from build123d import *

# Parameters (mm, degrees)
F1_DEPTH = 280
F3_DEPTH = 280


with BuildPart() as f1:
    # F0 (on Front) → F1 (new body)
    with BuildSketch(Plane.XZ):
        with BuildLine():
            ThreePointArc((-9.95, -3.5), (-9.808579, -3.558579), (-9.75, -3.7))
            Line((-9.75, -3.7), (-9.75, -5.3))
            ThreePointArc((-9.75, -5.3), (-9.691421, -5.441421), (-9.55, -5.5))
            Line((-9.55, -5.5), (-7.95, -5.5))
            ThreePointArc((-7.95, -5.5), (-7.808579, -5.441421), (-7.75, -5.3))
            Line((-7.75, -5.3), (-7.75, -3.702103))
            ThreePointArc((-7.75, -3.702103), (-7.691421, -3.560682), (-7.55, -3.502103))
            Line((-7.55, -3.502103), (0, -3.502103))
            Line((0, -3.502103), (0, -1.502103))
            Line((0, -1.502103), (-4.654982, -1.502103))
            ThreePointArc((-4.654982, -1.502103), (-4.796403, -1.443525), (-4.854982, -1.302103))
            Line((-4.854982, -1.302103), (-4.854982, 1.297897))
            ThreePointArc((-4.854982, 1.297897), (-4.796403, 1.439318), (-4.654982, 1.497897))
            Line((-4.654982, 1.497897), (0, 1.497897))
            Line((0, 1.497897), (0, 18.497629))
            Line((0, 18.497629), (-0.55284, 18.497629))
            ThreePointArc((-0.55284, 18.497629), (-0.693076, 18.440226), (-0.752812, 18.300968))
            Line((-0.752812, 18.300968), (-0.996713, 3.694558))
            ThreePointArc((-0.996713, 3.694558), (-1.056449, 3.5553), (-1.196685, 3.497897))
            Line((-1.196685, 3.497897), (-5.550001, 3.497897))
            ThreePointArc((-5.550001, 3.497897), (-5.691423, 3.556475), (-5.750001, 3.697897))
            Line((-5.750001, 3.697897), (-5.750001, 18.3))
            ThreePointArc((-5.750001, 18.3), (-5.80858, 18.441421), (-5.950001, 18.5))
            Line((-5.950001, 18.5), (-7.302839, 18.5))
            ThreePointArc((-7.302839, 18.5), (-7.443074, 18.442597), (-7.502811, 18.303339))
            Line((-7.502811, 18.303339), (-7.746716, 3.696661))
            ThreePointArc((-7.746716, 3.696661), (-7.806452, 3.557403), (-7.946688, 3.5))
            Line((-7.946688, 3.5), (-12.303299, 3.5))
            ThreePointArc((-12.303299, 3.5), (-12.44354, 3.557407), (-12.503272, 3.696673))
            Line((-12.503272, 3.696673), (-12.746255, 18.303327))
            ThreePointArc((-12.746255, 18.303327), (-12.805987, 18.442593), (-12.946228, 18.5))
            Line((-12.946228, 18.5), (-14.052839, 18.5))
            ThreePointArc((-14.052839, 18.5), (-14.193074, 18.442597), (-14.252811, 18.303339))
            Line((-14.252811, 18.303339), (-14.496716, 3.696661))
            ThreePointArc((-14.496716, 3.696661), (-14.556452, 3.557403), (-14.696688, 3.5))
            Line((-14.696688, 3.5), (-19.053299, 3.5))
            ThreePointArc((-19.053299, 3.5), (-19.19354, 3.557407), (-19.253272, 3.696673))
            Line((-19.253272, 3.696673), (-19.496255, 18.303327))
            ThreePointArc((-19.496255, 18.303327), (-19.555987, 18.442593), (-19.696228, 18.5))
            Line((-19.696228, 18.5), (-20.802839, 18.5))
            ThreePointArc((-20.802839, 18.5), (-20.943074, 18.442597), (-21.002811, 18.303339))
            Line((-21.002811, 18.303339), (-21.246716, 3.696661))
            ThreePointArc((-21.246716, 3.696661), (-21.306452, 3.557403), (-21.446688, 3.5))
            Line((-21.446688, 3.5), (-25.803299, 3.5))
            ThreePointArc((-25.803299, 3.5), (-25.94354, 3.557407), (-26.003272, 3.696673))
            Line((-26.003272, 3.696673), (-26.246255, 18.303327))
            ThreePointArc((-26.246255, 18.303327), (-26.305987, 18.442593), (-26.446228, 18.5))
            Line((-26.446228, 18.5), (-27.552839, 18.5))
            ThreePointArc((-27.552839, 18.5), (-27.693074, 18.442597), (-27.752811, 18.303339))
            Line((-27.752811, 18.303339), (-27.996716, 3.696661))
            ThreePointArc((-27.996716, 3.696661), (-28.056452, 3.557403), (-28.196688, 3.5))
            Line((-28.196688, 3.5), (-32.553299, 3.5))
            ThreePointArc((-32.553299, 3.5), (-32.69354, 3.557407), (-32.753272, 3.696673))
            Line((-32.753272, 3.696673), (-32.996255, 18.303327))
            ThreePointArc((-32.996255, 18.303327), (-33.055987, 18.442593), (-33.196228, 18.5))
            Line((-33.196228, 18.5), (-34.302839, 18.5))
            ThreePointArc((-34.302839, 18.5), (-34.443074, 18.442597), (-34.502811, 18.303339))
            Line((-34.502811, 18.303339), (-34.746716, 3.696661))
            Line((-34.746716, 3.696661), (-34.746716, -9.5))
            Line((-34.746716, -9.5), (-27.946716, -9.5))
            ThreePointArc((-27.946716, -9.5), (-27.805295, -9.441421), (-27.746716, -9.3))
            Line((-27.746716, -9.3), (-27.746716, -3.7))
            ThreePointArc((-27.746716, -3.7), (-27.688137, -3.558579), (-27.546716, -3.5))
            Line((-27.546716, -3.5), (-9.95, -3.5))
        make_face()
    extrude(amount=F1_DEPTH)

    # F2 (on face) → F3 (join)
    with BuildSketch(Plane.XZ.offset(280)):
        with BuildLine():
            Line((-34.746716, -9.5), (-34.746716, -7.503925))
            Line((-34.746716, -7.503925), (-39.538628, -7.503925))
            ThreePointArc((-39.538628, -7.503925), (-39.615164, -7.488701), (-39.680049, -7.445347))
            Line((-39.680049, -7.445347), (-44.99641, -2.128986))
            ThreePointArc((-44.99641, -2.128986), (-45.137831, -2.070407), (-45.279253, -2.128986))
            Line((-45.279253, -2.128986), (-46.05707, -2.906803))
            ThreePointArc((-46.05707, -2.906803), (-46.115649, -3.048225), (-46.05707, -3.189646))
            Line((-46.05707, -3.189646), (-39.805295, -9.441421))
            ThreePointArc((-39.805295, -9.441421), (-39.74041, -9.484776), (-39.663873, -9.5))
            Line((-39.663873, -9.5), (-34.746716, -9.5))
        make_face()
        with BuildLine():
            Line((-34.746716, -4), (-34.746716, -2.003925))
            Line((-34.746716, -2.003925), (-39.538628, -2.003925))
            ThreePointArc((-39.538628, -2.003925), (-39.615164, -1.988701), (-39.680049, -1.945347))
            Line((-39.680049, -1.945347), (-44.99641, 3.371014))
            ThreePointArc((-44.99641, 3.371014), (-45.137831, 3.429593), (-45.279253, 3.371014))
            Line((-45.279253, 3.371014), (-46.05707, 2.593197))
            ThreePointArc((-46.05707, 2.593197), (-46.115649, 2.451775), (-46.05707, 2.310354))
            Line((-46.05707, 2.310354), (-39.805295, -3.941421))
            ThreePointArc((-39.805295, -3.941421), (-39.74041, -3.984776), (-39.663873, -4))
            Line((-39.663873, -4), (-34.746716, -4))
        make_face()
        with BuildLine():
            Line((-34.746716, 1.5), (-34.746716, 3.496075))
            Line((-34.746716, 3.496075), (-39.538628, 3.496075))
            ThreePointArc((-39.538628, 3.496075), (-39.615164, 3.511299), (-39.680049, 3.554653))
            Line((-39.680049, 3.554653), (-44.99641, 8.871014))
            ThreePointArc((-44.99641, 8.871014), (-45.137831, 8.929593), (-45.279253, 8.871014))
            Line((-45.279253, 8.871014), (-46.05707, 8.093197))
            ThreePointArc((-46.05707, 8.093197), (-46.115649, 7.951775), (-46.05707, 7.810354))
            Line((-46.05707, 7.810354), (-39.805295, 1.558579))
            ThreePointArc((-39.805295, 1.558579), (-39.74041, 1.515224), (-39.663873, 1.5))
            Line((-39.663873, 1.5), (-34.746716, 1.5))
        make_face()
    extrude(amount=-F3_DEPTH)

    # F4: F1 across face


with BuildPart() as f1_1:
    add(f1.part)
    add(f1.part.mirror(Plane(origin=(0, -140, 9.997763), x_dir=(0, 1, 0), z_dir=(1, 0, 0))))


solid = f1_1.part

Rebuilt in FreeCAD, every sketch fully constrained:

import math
import FreeCAD as App
import Part
import Sketcher

V = App.Vector
Q = App.Units.Quantity

doc = App.newDocument("Part")
body = doc.addObject("PartDesign::Body", "Body")

sketch1 = body.newObject("Sketcher::SketchObject", "Sketch")
sketch1.AttachmentSupport = (doc.getObject("XZ_Plane"), [""])
sketch1.MapMode = "FlatFace"
sketch1.addGeometry([
    Part.ArcOfCircle(Part.Circle(V(-9.950001, -3.700001, 0), V(0, 0, 1), 0.200001), math.radians(0.000348), math.radians(89.999652)),
    Part.LineSegment(V(-9.75, -3.7, 0), V(-9.75, -5.3, 0)),
    Part.ArcOfCircle(Part.Circle(V(-9.549999, -5.299999, 0), V(0, 0, 1), 0.200001), math.radians(-179.999652), math.radians(-90.000348)),
    Part.LineSegment(V(-9.55, -5.5, 0), V(-7.95, -5.5, 0)),
    Part.ArcOfCircle(Part.Circle(V(-7.950001, -5.299999, 0), V(0, 0, 1), 0.200001), math.radians(-89.999652), math.radians(-0.000348)),
    Part.LineSegment(V(-7.75, -5.3, 0), V(-7.75, -3.702103, 0)),
    Part.ArcOfCircle(Part.Circle(V(-7.549999, -3.702104, 0), V(0, 0, 1), 0.200001), math.radians(90.000348), math.radians(179.999652)),
    Part.LineSegment(V(-7.55, -3.502103, 0), V(0, -3.502103, 0)),
    Part.LineSegment(V(0, -3.502103, 0), V(0, -1.502103, 0)),
    Part.LineSegment(V(0, -1.502103, 0), V(-4.654982, -1.502103, 0)),
    Part.ArcOfCircle(Part.Circle(V(-4.654982, -1.302103, 0), V(0, 0, 1), 0.2), math.radians(179.999859), math.radians(270.000141)),
    Part.LineSegment(V(-4.854982, -1.302103, 0), V(-4.854982, 1.297897, 0)),
    Part.ArcOfCircle(Part.Circle(V(-4.654981, 1.297896, 0), V(0, 0, 1), 0.200001), math.radians(90.000348), math.radians(179.999652)),
    Part.LineSegment(V(-4.654982, 1.497897, 0), V(0, 1.497897, 0)),
    Part.LineSegment(V(0, 1.497897, 0), V(0, 18.497629, 0)),
    Part.LineSegment(V(0, 18.497629, 0), V(-0.55284, 18.497629, 0)),
    Part.ArcOfCircle(Part.Circle(V(-0.55284, 18.297629, 0), V(0, 0, 1), 0.2), math.radians(89.999904), math.radians(179.043534)),
    Part.LineSegment(V(-0.752812, 18.300968, 0), V(-0.996713, 3.694558, 0)),
    Part.ArcOfCircle(Part.Circle(V(-1.196685, 3.697897, 0), V(0, 0, 1), 0.2), math.radians(-90.000096), math.radians(-0.956466)),
    Part.LineSegment(V(-1.196685, 3.497897, 0), V(-5.550001, 3.497897, 0)),
    Part.ArcOfCircle(Part.Circle(V(-5.550003, 3.697895, 0), V(0, 0, 1), 0.199998), math.radians(179.99937), math.radians(270.00063)),
    Part.LineSegment(V(-5.750001, 3.697897, 0), V(-5.750001, 18.3, 0)),
    Part.ArcOfCircle(Part.Circle(V(-5.950002, 18.299999, 0), V(0, 0, 1), 0.200001), math.radians(0.000348), math.radians(89.999652)),
    Part.LineSegment(V(-5.950001, 18.5, 0), V(-7.302839, 18.5, 0)),
    Part.ArcOfCircle(Part.Circle(V(-7.302838, 18.299999, 0), V(0, 0, 1), 0.200001), math.radians(90.000395), math.radians(179.043044)),
    Part.LineSegment(V(-7.502811, 18.303339, 0), V(-7.746716, 3.696661, 0)),
    Part.ArcOfCircle(Part.Circle(V(-7.946688, 3.7, 0), V(0, 0, 1), 0.2), math.radians(-90.000096), math.radians(-0.956466)),
    Part.LineSegment(V(-7.946688, 3.5, 0), V(-12.303299, 3.5, 0)),
    Part.ArcOfCircle(Part.Circle(V(-12.3033, 3.699999, 0), V(0, 0, 1), 0.199999), math.radians(-179.047038), math.radians(-89.99961)),
    Part.LineSegment(V(-12.503272, 3.696673, 0), V(-12.746255, 18.303327, 0)),
    Part.ArcOfCircle(Part.Circle(V(-12.946227, 18.300001, 0), V(0, 0, 1), 0.199999), math.radians(0.952962), math.radians(90.00039)),
    Part.LineSegment(V(-12.946228, 18.5, 0), V(-14.052839, 18.5, 0)),
    Part.ArcOfCircle(Part.Circle(V(-14.052838, 18.299999, 0), V(0, 0, 1), 0.200001), math.radians(90.000395), math.radians(179.043044)),
    Part.LineSegment(V(-14.252811, 18.303339, 0), V(-14.496716, 3.696661, 0)),
    Part.ArcOfCircle(Part.Circle(V(-14.696688, 3.7, 0), V(0, 0, 1), 0.2), math.radians(-90.000096), math.radians(-0.956466)),
    Part.LineSegment(V(-14.696688, 3.5, 0), V(-19.053299, 3.5, 0)),
    Part.ArcOfCircle(Part.Circle(V(-19.0533, 3.699999, 0), V(0, 0, 1), 0.199999), math.radians(-179.047038), math.radians(-89.99961)),
    Part.LineSegment(V(-19.253272, 3.696673, 0), V(-19.496255, 18.303327, 0)),
    Part.ArcOfCircle(Part.Circle(V(-19.696227, 18.300001, 0), V(0, 0, 1), 0.199999), math.radians(0.952962), math.radians(90.00039)),
    Part.LineSegment(V(-19.696228, 18.5, 0), V(-20.802839, 18.5, 0)),
    Part.ArcOfCircle(Part.Circle(V(-20.802838, 18.299999, 0), V(0, 0, 1), 0.200001), math.radians(90.000395), math.radians(179.043044)),
    Part.LineSegment(V(-21.002811, 18.303339, 0), V(-21.246716, 3.696661, 0)),
    Part.ArcOfCircle(Part.Circle(V(-21.446688, 3.7, 0), V(0, 0, 1), 0.2), math.radians(-90.000096), math.radians(-0.956466)),
    Part.LineSegment(V(-21.446688, 3.5, 0), V(-25.803299, 3.5, 0)),
    Part.ArcOfCircle(Part.Circle(V(-25.8033, 3.699999, 0), V(0, 0, 1), 0.199999), math.radians(-179.047038), math.radians(-89.99961)),
    Part.LineSegment(V(-26.003272, 3.696673, 0), V(-26.246255, 18.303327, 0)),
    Part.ArcOfCircle(Part.Circle(V(-26.446227, 18.300001, 0), V(0, 0, 1), 0.199999), math.radians(0.952962), math.radians(90.00039)),
    Part.LineSegment(V(-26.446228, 18.5, 0), V(-27.552839, 18.5, 0)),
    Part.ArcOfCircle(Part.Circle(V(-27.552838, 18.299999, 0), V(0, 0, 1), 0.200001), math.radians(90.000395), math.radians(179.043044)),
    Part.LineSegment(V(-27.752811, 18.303339, 0), V(-27.996716, 3.696661, 0)),
    Part.ArcOfCircle(Part.Circle(V(-28.196688, 3.7, 0), V(0, 0, 1), 0.2), math.radians(-90.000096), math.radians(-0.956466)),
    Part.LineSegment(V(-28.196688, 3.5, 0), V(-32.553299, 3.5, 0)),
    Part.ArcOfCircle(Part.Circle(V(-32.5533, 3.699999, 0), V(0, 0, 1), 0.199999), math.radians(-179.047038), math.radians(-89.99961)),
    Part.LineSegment(V(-32.753272, 3.696673, 0), V(-32.996255, 18.303327, 0)),
    Part.ArcOfCircle(Part.Circle(V(-33.196227, 18.300001, 0), V(0, 0, 1), 0.199999), math.radians(0.952962), math.radians(90.00039)),
    Part.LineSegment(V(-33.196228, 18.5, 0), V(-34.302839, 18.5, 0)),
    Part.ArcOfCircle(Part.Circle(V(-34.302838, 18.299999, 0), V(0, 0, 1), 0.200001), math.radians(90.000395), math.radians(179.043044)),
    Part.LineSegment(V(-34.502811, 18.303339, 0), V(-34.746716, 3.696661, 0)),
    Part.LineSegment(V(-34.746716, 3.696661, 0), V(-34.746716, -9.5, 0)),
    Part.LineSegment(V(-34.746716, -9.5, 0), V(-27.946716, -9.5, 0)),
    Part.ArcOfCircle(Part.Circle(V(-27.946717, -9.299999, 0), V(0, 0, 1), 0.200001), math.radians(-89.999652), math.radians(-0.000348)),
    Part.LineSegment(V(-27.746716, -9.3, 0), V(-27.746716, -3.7, 0)),
    Part.ArcOfCircle(Part.Circle(V(-27.546715, -3.700001, 0), V(0, 0, 1), 0.200001), math.radians(90.000348), math.radians(179.999652)),
    Part.LineSegment(V(-27.546716, -3.5, 0), V(-9.95, -3.5, 0)),
], False)
sketch1.addConstraint([
    Sketcher.Constraint("Coincident", 0, 1, 1, 1),
    Sketcher.Constraint("Coincident", 1, 2, 2, 1),
    Sketcher.Constraint("Coincident", 2, 2, 3, 1),
    Sketcher.Constraint("Coincident", 3, 2, 4, 1),
    Sketcher.Constraint("Coincident", 4, 2, 5, 1),
    Sketcher.Constraint("Coincident", 5, 2, 6, 2),
    Sketcher.Constraint("Coincident", 6, 1, 7, 1),
    Sketcher.Constraint("Coincident", 7, 2, 8, 1),
    Sketcher.Constraint("Coincident", 8, 2, 9, 1),
    Sketcher.Constraint("Coincident", 9, 2, 10, 2),
    Sketcher.Constraint("Coincident", 10, 1, 11, 1),
    Sketcher.Constraint("Coincident", 11, 2, 12, 2),
    Sketcher.Constraint("Coincident", 12, 1, 13, 1),
    Sketcher.Constraint("Coincident", 13, 2, 14, 1),
    Sketcher.Constraint("Coincident", 14, 2, 15, 1),
    Sketcher.Constraint("Coincident", 15, 2, 16, 1),
    Sketcher.Constraint("Coincident", 16, 2, 17, 1),
    Sketcher.Constraint("Coincident", 17, 2, 18, 2),
    Sketcher.Constraint("Coincident", 18, 1, 19, 1),
    Sketcher.Constraint("Coincident", 19, 2, 20, 2),
    Sketcher.Constraint("Coincident", 20, 1, 21, 1),
    Sketcher.Constraint("Coincident", 21, 2, 22, 1),
    Sketcher.Constraint("Coincident", 22, 2, 23, 1),
    Sketcher.Constraint("Coincident", 23, 2, 24, 1),
    Sketcher.Constraint("Coincident", 24, 2, 25, 1),
    Sketcher.Constraint("Coincident", 25, 2, 26, 2),
    Sketcher.Constraint("Coincident", 26, 1, 27, 1),
    Sketcher.Constraint("Coincident", 27, 2, 28, 2),
    Sketcher.Constraint("Coincident", 28, 1, 29, 1),
    Sketcher.Constraint("Coincident", 29, 2, 30, 1),
    Sketcher.Constraint("Coincident", 30, 2, 31, 1),
    Sketcher.Constraint("Coincident", 31, 2, 32, 1),
    Sketcher.Constraint("Coincident", 32, 2, 33, 1),
    Sketcher.Constraint("Coincident", 33, 2, 34, 2),
    Sketcher.Constraint("Coincident", 34, 1, 35, 1),
    Sketcher.Constraint("Coincident", 35, 2, 36, 2),
    Sketcher.Constraint("Coincident", 36, 1, 37, 1),
    Sketcher.Constraint("Coincident", 37, 2, 38, 1),
    Sketcher.Constraint("Coincident", 38, 2, 39, 1),
    Sketcher.Constraint("Coincident", 39, 2, 40, 1),
    Sketcher.Constraint("Coincident", 40, 2, 41, 1),
    Sketcher.Constraint("Coincident", 41, 2, 42, 2),
    Sketcher.Constraint("Coincident", 42, 1, 43, 1),
    Sketcher.Constraint("Coincident", 43, 2, 44, 2),
    Sketcher.Constraint("Coincident", 44, 1, 45, 1),
    Sketcher.Constraint("Coincident", 45, 2, 46, 1),
    Sketcher.Constraint("Coincident", 46, 2, 47, 1),
    Sketcher.Constraint("Coincident", 47, 2, 48, 1),
    Sketcher.Constraint("Coincident", 48, 2, 49, 1),
    Sketcher.Constraint("Coincident", 49, 2, 50, 2),
    Sketcher.Constraint("Coincident", 50, 1, 51, 1),
    Sketcher.Constraint("Coincident", 51, 2, 52, 2),
    Sketcher.Constraint("Coincident", 52, 1, 53, 1),
    Sketcher.Constraint("Coincident", 53, 2, 54, 1),
    Sketcher.Constraint("Coincident", 54, 2, 55, 1),
    Sketcher.Constraint("Coincident", 55, 2, 56, 1),
    Sketcher.Constraint("Coincident", 56, 2, 57, 1),
    Sketcher.Constraint("Coincident", 57, 2, 58, 1),
    Sketcher.Constraint("Coincident", 58, 2, 59, 1),
    Sketcher.Constraint("Coincident", 59, 2, 60, 1),
    Sketcher.Constraint("Coincident", 60, 2, 61, 1),
    Sketcher.Constraint("Coincident", 61, 2, 62, 2),
    Sketcher.Constraint("Coincident", 62, 1, 63, 1),
    Sketcher.Constraint("Coincident", 63, 2, 0, 2),
    Sketcher.Constraint("Vertical", 1),
    Sketcher.Constraint("Horizontal", 3),
    Sketcher.Constraint("Vertical", 5),
    Sketcher.Constraint("Horizontal", 7),
    Sketcher.Constraint("Vertical", 8),
    Sketcher.Constraint("Horizontal", 9),
    Sketcher.Constraint("Vertical", 11),
    Sketcher.Constraint("Horizontal", 13),
    Sketcher.Constraint("Vertical", 14),
    Sketcher.Constraint("Horizontal", 15),
    Sketcher.Constraint("Horizontal", 19),
    Sketcher.Constraint("Vertical", 21),
    Sketcher.Constraint("Horizontal", 23),
    Sketcher.Constraint("Horizontal", 27),
    Sketcher.Constraint("Horizontal", 31),
    Sketcher.Constraint("Horizontal", 35),
    Sketcher.Constraint("Horizontal", 39),
    Sketcher.Constraint("Horizontal", 43),
    Sketcher.Constraint("Horizontal", 47),
    Sketcher.Constraint("Horizontal", 51),
    Sketcher.Constraint("Horizontal", 55),
    Sketcher.Constraint("Vertical", 58),
    Sketcher.Constraint("Horizontal", 59),
    Sketcher.Constraint("Vertical", 61),
    Sketcher.Constraint("Horizontal", 63),
    Sketcher.Constraint("PointOnObject", 7, 2, -2),
    Sketcher.Constraint("PointOnObject", 13, 2, -2),
    Sketcher.Constraint("Radius", 0, 0.200001),
    Sketcher.Constraint("Radius", 2, 0.200001),
    Sketcher.Constraint("Radius", 4, 0.200001),
    Sketcher.Constraint("Radius", 6, 0.200001),
    Sketcher.Constraint("Radius", 10, 0.2),
    Sketcher.Constraint("Radius", 12, 0.200001),
    Sketcher.Constraint("Radius", 16, 0.2),
    Sketcher.Constraint("Radius", 18, 0.2),
    Sketcher.Constraint("Radius", 22, 0.200001),
    Sketcher.Constraint("Radius", 24, 0.200001),
    Sketcher.Constraint("Radius", 26, 0.2),
    Sketcher.Constraint("Radius", 28, 0.199999),
    Sketcher.Constraint("Radius", 30, 0.199999),
    Sketcher.Constraint("Radius", 32, 0.200001),
    Sketcher.Constraint("Radius", 34, 0.2),
    Sketcher.Constraint("Radius", 36, 0.199999),
    Sketcher.Constraint("Radius", 38, 0.199999),
    Sketcher.Constraint("Radius", 40, 0.200001),
    Sketcher.Constraint("Radius", 42, 0.2),
    Sketcher.Constraint("Radius", 44, 0.199999),
    Sketcher.Constraint("Radius", 46, 0.199999),
    Sketcher.Constraint("Radius", 48, 0.200001),
    Sketcher.Constraint("Radius", 50, 0.2),
    Sketcher.Constraint("Radius", 52, 0.199999),
    Sketcher.Constraint("Radius", 54, 0.199999),
    Sketcher.Constraint("Radius", 56, 0.200001),
    Sketcher.Constraint("Radius", 60, 0.200001),
    Sketcher.Constraint("Radius", 62, 0.200001),
    Sketcher.Constraint("DistanceY", 8, 1, 8, 2, 2.0),
    Sketcher.Constraint("DistanceX", 3, 1, 3, 2, 1.6),
    Sketcher.Constraint("DistanceX", 59, 1, 59, 2, 6.8),
    Sketcher.Constraint("DistanceY", 1, 2, 1, 1, 1.6),
    Sketcher.Constraint("DistanceY", 11, 1, 11, 2, 2.6),
    Sketcher.Constraint("DistanceY", 61, 1, 61, 2, 5.6),
    Sketcher.Constraint("DistanceX", 7, 1, 7, 2, 7.55),
    Sketcher.Constraint("DistanceY", 0, 3, -1, 1, 3.700001),
    Sketcher.Constraint("DistanceY", 2, 3, -1, 1, 5.299999),
    Sketcher.Constraint("DistanceY", -1, 1, 22, 3, 18.299999),
    Sketcher.Constraint("DistanceY", -1, 1, 26, 3, 3.7),
    Sketcher.Constraint("DistanceY", -1, 1, 30, 3, 18.300001),
    Sketcher.Constraint("DistanceY", -1, 1, 34, 3, 3.7),
    Sketcher.Constraint("DistanceY", -1, 1, 38, 3, 18.300001),
    Sketcher.Constraint("DistanceY", -1, 1, 42, 3, 3.7),
    Sketcher.Constraint("DistanceY", -1, 1, 46, 3, 18.300001),
    Sketcher.Constraint("DistanceY", -1, 1, 50, 3, 3.7),
    Sketcher.Constraint("DistanceY", -1, 1, 54, 3, 18.300001),
    Sketcher.Constraint("DistanceY", 60, 3, -1, 1, 9.299999),
    Sketcher.Constraint("DistanceY", 0, 1, -1, 1, 3.7),
    Sketcher.Constraint("DistanceY", 4, 2, -1, 1, 5.3),
    Sketcher.Constraint("DistanceY", -1, 1, 21, 2, 18.3),
    Sketcher.Constraint("DistanceY", 60, 2, -1, 1, 9.3),
    Sketcher.Constraint("DistanceX", 0, 3, -1, 1, 9.950001),
    Sketcher.Constraint("DistanceX", 4, 3, -1, 1, 7.950001),
    Sketcher.Constraint("DistanceX", 2, 2, -1, 1, 9.55),
    Sketcher.Constraint("DistanceX", 19, 2, -1, 1, 5.550001),
    Sketcher.Constraint("DistanceX", 20, 1, -1, 1, 5.750001),
    Sketcher.Constraint("DistanceX", 22, 2, -1, 1, 5.950001),
    Sketcher.Constraint("DistanceX", 63, 2, -1, 1, 9.95),
    Sketcher.Constraint("Radius", 20, 0.199998),
    Sketcher.Constraint("DistanceX", 15, 2, 15, 1, 0.55284),
    Sketcher.Constraint("DistanceX", 27, 2, 27, 1, 4.356611),
    Sketcher.Constraint("DistanceX", 31, 2, 31, 1, 1.106611),
    Sketcher.Constraint("DistanceX", 35, 2, 35, 1, 4.356611),
    Sketcher.Constraint("DistanceX", 39, 2, 39, 1, 1.106611),
    Sketcher.Constraint("DistanceX", 43, 2, 43, 1, 4.356611),
    Sketcher.Constraint("DistanceX", 47, 2, 47, 1, 1.106611),
    Sketcher.Constraint("DistanceX", 51, 2, 51, 1, 4.356611),
    Sketcher.Constraint("DistanceX", 55, 2, 55, 1, 1.106611),
    Sketcher.Constraint("DistanceY", 58, 2, 58, 1, 13.196661),
    Sketcher.Constraint("DistanceX", 28, 3, -1, 1, 12.3033),
    Sketcher.Constraint("DistanceX", 36, 3, -1, 1, 19.0533),
    Sketcher.Constraint("DistanceX", 44, 3, -1, 1, 25.8033),
    Sketcher.Constraint("DistanceX", 52, 3, -1, 1, 32.5533),
    Sketcher.Constraint("DistanceX", 27, 2, -1, 1, 12.303299),
    Sketcher.Constraint("DistanceX", 35, 2, -1, 1, 19.053299),
    Sketcher.Constraint("DistanceX", 43, 2, -1, 1, 25.803299),
    Sketcher.Constraint("DistanceX", 51, 2, -1, 1, 32.553299),
    Sketcher.Constraint("DistanceX", 9, 2, 9, 1, 4.654982),
    Sketcher.Constraint("DistanceX", 13, 1, 13, 2, 4.654982),
    Sketcher.Constraint("DistanceX", 19, 2, 19, 1, 4.353316),
    Sketcher.Constraint("DistanceX", 23, 2, 23, 1, 1.352838),
    Sketcher.Constraint("DistanceX", 63, 1, 63, 2, 17.596716),
    Sketcher.Constraint("DistanceY", 5, 1, 5, 2, 1.597897),
    Sketcher.Constraint("DistanceY", 14, 1, 14, 2, 16.999732),
    Sketcher.Constraint("DistanceY", 21, 1, 21, 2, 14.602103),
    Sketcher.Constraint("DistanceX", 12, 3, -1, 1, 4.654981),
    Sketcher.Constraint("DistanceX", 16, 3, -1, 1, 0.55284),
    Sketcher.Constraint("DistanceY", -1, 1, 16, 3, 18.297629),
    Sketcher.Constraint("DistanceY", -1, 1, 16, 2, 18.300968),
    Sketcher.Constraint("DistanceX", 24, 2, -1, 1, 7.502811),
    Sketcher.Constraint("DistanceY", -1, 1, 24, 2, 18.303339),
    Sketcher.Constraint("DistanceY", -1, 1, 25, 2, 3.696661),
    Sketcher.Constraint("DistanceX", 31, 2, -1, 1, 14.052839),
    Sketcher.Constraint("DistanceX", 32, 2, -1, 1, 14.252811),
    Sketcher.Constraint("DistanceY", -1, 1, 32, 2, 18.303339),
    Sketcher.Constraint("DistanceY", -1, 1, 33, 2, 3.696661),
    Sketcher.Constraint("DistanceX", 38, 2, -1, 1, 19.696228),
    Sketcher.Constraint("DistanceX", 40, 2, -1, 1, 21.002811),
    Sketcher.Constraint("DistanceY", -1, 1, 40, 2, 18.303339),
    Sketcher.Constraint("DistanceY", -1, 1, 41, 2, 3.696661),
    Sketcher.Constraint("DistanceX", 46, 2, -1, 1, 26.446228),
    Sketcher.Constraint("DistanceX", 48, 2, -1, 1, 27.752811),
    Sketcher.Constraint("DistanceY", -1, 1, 48, 2, 18.303339),
    Sketcher.Constraint("DistanceY", -1, 1, 49, 2, 3.696661),
    Sketcher.Constraint("DistanceX", 55, 2, -1, 1, 34.302839),
    Sketcher.Constraint("DistanceX", 56, 2, -1, 1, 34.502811),
    Sketcher.Constraint("DistanceY", -1, 1, 56, 2, 18.303339),
    Sketcher.Constraint("Distance", 17, 14.608446),
    Sketcher.Constraint("Distance", 25, 14.608714),
    Sketcher.Constraint("Distance", 29, 14.608675),
    Sketcher.Constraint("Distance", 33, 14.608714),
    Sketcher.Constraint("Distance", 37, 14.608675),
    Sketcher.Constraint("Distance", 41, 14.608714),
    Sketcher.Constraint("Distance", 45, 14.608675),
    Sketcher.Constraint("Distance", 49, 14.608714),
    Sketcher.Constraint("Distance", 53, 14.608675),
    Sketcher.Constraint("Distance", 57, 14.608714),
    Sketcher.Constraint("DistanceY", 6, 3, -1, 1, 3.702104),
    Sketcher.Constraint("DistanceX", 18, 3, -1, 1, 1.196685),
    Sketcher.Constraint("DistanceY", -1, 1, 18, 3, 3.697897),
    Sketcher.Constraint("DistanceX", 30, 3, -1, 1, 12.946227),
    Sketcher.Constraint("DistanceX", 38, 3, -1, 1, 19.696227),
    Sketcher.Constraint("DistanceX", 46, 3, -1, 1, 26.446227),
    Sketcher.Constraint("DistanceX", 54, 3, -1, 1, 33.196227),
    Sketcher.Constraint("DistanceX", 60, 3, -1, 1, 27.946717),
    Sketcher.Constraint("DistanceY", 10, 1, -1, 1, 1.302103),
    Sketcher.Constraint("DistanceY", -1, 1, 28, 1, 3.696673),
    Sketcher.Constraint("DistanceY", -1, 1, 36, 1, 3.696673),
    Sketcher.Constraint("DistanceY", -1, 1, 44, 1, 3.696673),
    Sketcher.Constraint("DistanceY", -1, 1, 52, 1, 3.696673),
])
pad1 = body.newObject("PartDesign::Pad", "Pad")
pad1.Profile = sketch1
pad1.Length = 280

sketch2 = body.newObject("Sketcher::SketchObject", "Sketch001")
sketch2.AttachmentSupport = (doc.getObject("XZ_Plane"), [""])
sketch2.MapMode = "FlatFace"
sketch2.AttachmentOffset = App.Placement(V(0, 0, 280), App.Rotation())
sketch2.addGeometry([
    Part.LineSegment(V(-34.75, -9.5, 0), V(-34.75, -7.5, 0)),
    Part.LineSegment(V(-34.75, -7.5, 0), V(-39.54, -7.5, 0)),
    Part.ArcOfCircle(Part.Circle(V(-39.54, -7.3, 0), V(0, 0, 1), 0.2), math.radians(-135), math.radians(-90)),
    Part.LineSegment(V(-39.68, -7.45, 0), V(-45, -2.13, 0)),
    Part.ArcOfCircle(Part.Circle(V(-45.14, -2.27, 0), V(0, 0, 1), 0.2), math.radians(45), math.radians(135)),
    Part.LineSegment(V(-45.28, -2.13, 0), V(-46.06, -2.91, 0)),
    Part.ArcOfCircle(Part.Circle(V(-45.92, -3.05, 0), V(0, 0, 1), 0.2), math.radians(135), math.radians(225)),
    Part.LineSegment(V(-46.06, -3.19, 0), V(-39.81, -9.44, 0)),
    Part.ArcOfCircle(Part.Circle(V(-39.66, -9.3, 0), V(0, 0, 1), 0.2), math.radians(-135), math.radians(-90)),
    Part.LineSegment(V(-39.66, -9.5, 0), V(-34.75, -9.5, 0)),
    Part.LineSegment(V(-34.75, -4, 0), V(-34.75, -2, 0)),
    Part.LineSegment(V(-34.75, -2, 0), V(-39.54, -2, 0)),
    Part.ArcOfCircle(Part.Circle(V(-39.54, -1.8, 0), V(0, 0, 1), 0.2), math.radians(-135), math.radians(-90)),
    Part.LineSegment(V(-39.68, -1.95, 0), V(-45, 3.37, 0)),
    Part.ArcOfCircle(Part.Circle(V(-45.14, 3.23, 0), V(0, 0, 1), 0.2), math.radians(45), math.radians(135)),
    Part.LineSegment(V(-45.28, 3.37, 0), V(-46.06, 2.59, 0)),
    Part.ArcOfCircle(Part.Circle(V(-45.92, 2.45, 0), V(0, 0, 1), 0.2), math.radians(135), math.radians(225)),
    Part.LineSegment(V(-46.06, 2.31, 0), V(-39.81, -3.94, 0)),
    Part.ArcOfCircle(Part.Circle(V(-39.66, -3.8, 0), V(0, 0, 1), 0.2), math.radians(-135), math.radians(-90)),
    Part.LineSegment(V(-39.66, -4, 0), V(-34.75, -4, 0)),
    Part.LineSegment(V(-34.75, 1.5, 0), V(-34.75, 3.5, 0)),
    Part.LineSegment(V(-34.75, 3.5, 0), V(-39.54, 3.5, 0)),
    Part.ArcOfCircle(Part.Circle(V(-39.54, 3.7, 0), V(0, 0, 1), 0.2), math.radians(-135), math.radians(-90)),
    Part.LineSegment(V(-39.68, 3.55, 0), V(-45, 8.87, 0)),
    Part.ArcOfCircle(Part.Circle(V(-45.14, 8.73, 0), V(0, 0, 1), 0.2), math.radians(45), math.radians(135)),
    Part.LineSegment(V(-45.28, 8.87, 0), V(-46.06, 8.09, 0)),
    Part.ArcOfCircle(Part.Circle(V(-45.92, 7.95, 0), V(0, 0, 1), 0.2), math.radians(135), math.radians(225)),
    Part.LineSegment(V(-46.06, 7.81, 0), V(-39.81, 1.56, 0)),
    Part.ArcOfCircle(Part.Circle(V(-39.66, 1.7, 0), V(0, 0, 1), 0.2), math.radians(-135), math.radians(-90)),
    Part.LineSegment(V(-39.66, 1.5, 0), V(-34.75, 1.5, 0)),
], False)
sketch2.addConstraint([
    Sketcher.Constraint("Coincident", 0, 2, 1, 1),
    Sketcher.Constraint("Coincident", 1, 2, 2, 2),
    Sketcher.Constraint("Coincident", 2, 1, 3, 1),
    Sketcher.Constraint("Coincident", 3, 2, 4, 1),
    Sketcher.Constraint("Coincident", 4, 2, 5, 1),
    Sketcher.Constraint("Coincident", 5, 2, 6, 1),
    Sketcher.Constraint("Coincident", 6, 2, 7, 1),
    Sketcher.Constraint("Coincident", 7, 2, 8, 1),
    Sketcher.Constraint("Coincident", 8, 2, 9, 1),
    Sketcher.Constraint("Coincident", 9, 2, 0, 1),
    Sketcher.Constraint("Coincident", 10, 2, 11, 1),
    Sketcher.Constraint("Coincident", 11, 2, 12, 2),
    Sketcher.Constraint("Coincident", 12, 1, 13, 1),
    Sketcher.Constraint("Coincident", 13, 2, 14, 1),
    Sketcher.Constraint("Coincident", 14, 2, 15, 1),
    Sketcher.Constraint("Coincident", 15, 2, 16, 1),
    Sketcher.Constraint("Coincident", 16, 2, 17, 1),
    Sketcher.Constraint("Coincident", 17, 2, 18, 1),
    Sketcher.Constraint("Coincident", 18, 2, 19, 1),
    Sketcher.Constraint("Coincident", 19, 2, 10, 1),
    Sketcher.Constraint("Coincident", 20, 2, 21, 1),
    Sketcher.Constraint("Coincident", 21, 2, 22, 2),
    Sketcher.Constraint("Coincident", 22, 1, 23, 1),
    Sketcher.Constraint("Coincident", 23, 2, 24, 1),
    Sketcher.Constraint("Coincident", 24, 2, 25, 1),
    Sketcher.Constraint("Coincident", 25, 2, 26, 1),
    Sketcher.Constraint("Coincident", 26, 2, 27, 1),
    Sketcher.Constraint("Coincident", 27, 2, 28, 1),
    Sketcher.Constraint("Coincident", 28, 2, 29, 1),
    Sketcher.Constraint("Coincident", 29, 2, 20, 1),
    Sketcher.Constraint("Vertical", 0),
    Sketcher.Constraint("Horizontal", 1),
    Sketcher.Constraint("Horizontal", 9),
    Sketcher.Constraint("Vertical", 10),
    Sketcher.Constraint("Horizontal", 11),
    Sketcher.Constraint("Horizontal", 19),
    Sketcher.Constraint("Vertical", 20),
    Sketcher.Constraint("Horizontal", 21),
    Sketcher.Constraint("Horizontal", 29),
    Sketcher.Constraint("Equal", 4, 6),
    Sketcher.Constraint("Equal", 6, 8),
    Sketcher.Constraint("Equal", 2, 12),
    Sketcher.Constraint("Equal", 8, 14),
    Sketcher.Constraint("Equal", 14, 16),
    Sketcher.Constraint("Equal", 16, 18),
    Sketcher.Constraint("Equal", 12, 22),
    Sketcher.Constraint("Equal", 18, 24),
    Sketcher.Constraint("Equal", 24, 26),
    Sketcher.Constraint("Equal", 26, 28),
    Sketcher.Constraint("Perpendicular", 3, 5),
    Sketcher.Constraint("Perpendicular", 5, 7),
    Sketcher.Constraint("Parallel", 7, 13),
    Sketcher.Constraint("Perpendicular", 13, 15),
    Sketcher.Constraint("Perpendicular", 15, 17),
    Sketcher.Constraint("Parallel", 17, 23),
    Sketcher.Constraint("Perpendicular", 23, 25),
    Sketcher.Constraint("Perpendicular", 25, 27),
    Sketcher.Constraint("Horizontal", 3, 2, 4, 2),
    Sketcher.Constraint("Horizontal", 13, 2, 14, 2),
    Sketcher.Constraint("Horizontal", 23, 2, 24, 2),
    Sketcher.Constraint("Vertical", 2, 3, 12, 3),
    Sketcher.Constraint("Vertical", 4, 3, 14, 3),
    Sketcher.Constraint("Vertical", 6, 3, 16, 3),
    Sketcher.Constraint("Vertical", 8, 3, 18, 3),
    Sketcher.Constraint("Vertical", 12, 3, 22, 3),
    Sketcher.Constraint("Vertical", 14, 3, 24, 3),
    Sketcher.Constraint("Vertical", 16, 3, 26, 3),
    Sketcher.Constraint("Vertical", 18, 3, 28, 3),
    Sketcher.Constraint("Vertical", 22, 3, 1, 2),
    Sketcher.Constraint("Vertical", 5, 2, 6, 2),
    Sketcher.Constraint("Vertical", 28, 3, 8, 2),
    Sketcher.Constraint("Vertical", 9, 2, 10, 2),
    Sketcher.Constraint("Vertical", 1, 2, 11, 2),
    Sketcher.Constraint("Vertical", 2, 1, 12, 1),
    Sketcher.Constraint("Vertical", 3, 2, 13, 2),
    Sketcher.Constraint("Vertical", 6, 2, 15, 2),
    Sketcher.Constraint("Vertical", 15, 2, 16, 2),
    Sketcher.Constraint("Vertical", 7, 2, 17, 2),
    Sketcher.Constraint("Vertical", 8, 2, 18, 2),
    Sketcher.Constraint("Vertical", 19, 2, 20, 2),
    Sketcher.Constraint("Vertical", 11, 2, 21, 2),
    Sketcher.Constraint("Vertical", 12, 1, 22, 1),
    Sketcher.Constraint("Vertical", 13, 2, 23, 2),
    Sketcher.Constraint("Vertical", 16, 2, 25, 2),
    Sketcher.Constraint("Vertical", 25, 2, 26, 2),
    Sketcher.Constraint("Vertical", 17, 2, 27, 2),
    Sketcher.Constraint("Vertical", 18, 2, 28, 2),
    Sketcher.Constraint("Radius", 4, 0.199999),
    Sketcher.Constraint("Angle", 3, Q("135 deg")),
    Sketcher.Constraint("DistanceY", 18, 2, -1, 1, 4.0),
    Sketcher.Constraint("DistanceY", 4, 3, 24, 3, 11.0),
    Sketcher.Constraint("Distance", 5, 1.099999),
    Sketcher.Constraint("DistanceY", 8, 3, -1, 1, 9.300001),
    Sketcher.Constraint("Radius", 2, 0.200003),
    Sketcher.Constraint("DistanceY", 7, 2, 2, 3, 2.137499),
    Sketcher.Constraint("Distance", 3, 7.51847),
    Sketcher.Constraint("DistanceX", 1, 2, 1, 1, 4.791912),
    Sketcher.Constraint("DistanceX", 9, 1, 9, 2, 4.917157),
    Sketcher.Constraint("DistanceY", 0, 1, 0, 2, 1.996075),
    Sketcher.Constraint("DistanceX", 4, 3, -1, 1, 45.137831),
    Sketcher.Constraint("DistanceX", 1, 2, -1, 1, 39.538628),
    Sketcher.Constraint("DistanceX", 2, 1, -1, 1, 39.680049),
])
pad2 = body.newObject("PartDesign::Pad", "Pad001")
pad2.Profile = sketch2
pad2.Length = 280
pad2.Reversed = True
body2 = doc.addObject("PartDesign::Body", "Body001")
doc.recompute()

body2.BaseFeature = body
doc.recompute()

mirroring = doc.addObject("Part::Mirroring", "Mirroring")
mirroring.Source = body
mirroring.Base = V(0, -140, 9.997763)
mirroring.Normal = V(1, 0, 0)
body3 = doc.addObject("PartDesign::Body", "Body002")
body3.BaseFeature = mirroring
boolean = body2.newObject("PartDesign::Boolean", "Boolean")
boolean.Type = "Fuse"
boolean.addObjects([body3])
doc.recompute()
mirroring.Visibility = False

doc.recompute()
